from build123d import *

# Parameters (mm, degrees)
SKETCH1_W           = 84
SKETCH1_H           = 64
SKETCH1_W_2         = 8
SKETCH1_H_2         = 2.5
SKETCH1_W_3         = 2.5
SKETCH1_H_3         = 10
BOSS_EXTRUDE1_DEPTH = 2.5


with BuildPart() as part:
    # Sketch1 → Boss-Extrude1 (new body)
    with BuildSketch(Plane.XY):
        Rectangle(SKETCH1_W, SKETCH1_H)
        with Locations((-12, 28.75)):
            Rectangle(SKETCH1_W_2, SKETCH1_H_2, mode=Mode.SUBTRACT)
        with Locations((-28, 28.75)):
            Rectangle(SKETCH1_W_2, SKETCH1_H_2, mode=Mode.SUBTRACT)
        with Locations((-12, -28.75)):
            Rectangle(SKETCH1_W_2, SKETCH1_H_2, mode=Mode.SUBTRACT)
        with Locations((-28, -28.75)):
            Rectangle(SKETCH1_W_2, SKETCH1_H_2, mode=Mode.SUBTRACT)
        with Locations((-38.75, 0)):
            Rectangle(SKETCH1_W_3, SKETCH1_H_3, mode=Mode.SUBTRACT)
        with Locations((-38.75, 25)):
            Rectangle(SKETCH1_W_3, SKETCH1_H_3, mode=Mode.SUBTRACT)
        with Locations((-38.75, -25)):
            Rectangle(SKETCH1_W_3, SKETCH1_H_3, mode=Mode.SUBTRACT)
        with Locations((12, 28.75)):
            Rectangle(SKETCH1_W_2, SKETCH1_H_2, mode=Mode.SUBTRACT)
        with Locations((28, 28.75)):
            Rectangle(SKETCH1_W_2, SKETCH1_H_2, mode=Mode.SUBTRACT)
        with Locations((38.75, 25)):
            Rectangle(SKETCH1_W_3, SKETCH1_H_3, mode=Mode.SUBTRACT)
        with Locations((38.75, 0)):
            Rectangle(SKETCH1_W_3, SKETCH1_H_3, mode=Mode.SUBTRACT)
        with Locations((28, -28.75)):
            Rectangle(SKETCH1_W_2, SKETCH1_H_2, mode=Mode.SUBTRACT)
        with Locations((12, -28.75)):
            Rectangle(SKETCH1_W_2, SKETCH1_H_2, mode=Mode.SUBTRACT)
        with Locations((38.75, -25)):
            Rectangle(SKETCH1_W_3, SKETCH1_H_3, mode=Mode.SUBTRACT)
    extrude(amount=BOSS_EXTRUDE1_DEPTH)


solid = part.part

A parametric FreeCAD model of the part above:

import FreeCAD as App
import Part
import Sketcher
from FreeCAD import Vector


def add_polygon(sketch, points):
    """Adds a closed chain of lines whose ends are joined by coincident constraints."""
    first, n = sketch.GeometryCount, len(points)
    for a, b in zip(points, points[1:] + points[:1]):
        sketch.addGeometry(Part.LineSegment(App.Vector(*a, 0), App.Vector(*b, 0)), False)
    for i in range(n):
        sketch.addConstraint(Sketcher.Constraint("Coincident", first + i, 2, first + (i + 1) % n, 1))

doc = App.newDocument("Part")
params = doc.addObject("Spreadsheet::Sheet", "Params")
for row, (alias, value) in enumerate([
    ("sketch1_width", "84 mm"),
    ("sketch1_width2", "8 mm"),
    ("sketch1_height", "64 mm"),
    ("sketch1_height2", "10 mm"),
    ("sketch1_width3", "2.5 mm"),
    ("pad1_length", "2.5 mm"),
], start=1):
    params.set(f"A{row}", alias)
    params.set(f"B{row}", "=" + value)
    params.setAlias(f"B{row}", alias)

body = doc.addObject("PartDesign::Body", "Body")

# Sketch on XY plane
sketch1 = body.newObject("Sketcher::SketchObject", "Sketch")
sketch1.AttachmentSupport = (doc.getObject("XY_Plane"), [""])
sketch1.MapMode = "FlatFace"
add_polygon(sketch1, [(-42, 32), (-42, -32), (42, -32), (42, 32)])  # lines 0-3
add_polygon(sketch1, [(-37.5, -30), (-40, -30), (-40, -20), (-37.5, -20)])  # lines 4-7
add_polygon(sketch1, [(-24, -30), (-32, -30), (-32, -27.5), (-24, -27.5)])  # lines 8-11
add_polygon(sketch1, [(-8, -30), (-16, -30), (-16, -27.5), (-8, -27.5)])  # lines 12-15
add_polygon(sketch1, [(16, -30), (8, -30), (8, -27.5), (16, -27.5)])  # lines 16-19
add_polygon(sketch1, [(32, -30), (24, -30), (24, -27.5), (32, -27.5)])  # lines 20-23
add_polygon(sketch1, [(40, -30), (37.5, -30), (37.5, -20), (40, -20)])  # lines 24-27
add_polygon(sketch1, [(-37.5, -5), (-40, -5), (-40, 5), (-37.5, 5)])  # lines 28-31
add_polygon(sketch1, [(-37.5, 20), (-40, 20), (-40, 30), (-37.5, 30)])  # lines 32-35
add_polygon(sketch1, [(-24, 27.5), (-32, 27.5), (-32, 30), (-24, 30)])  # lines 36-39
add_polygon(sketch1, [(-8, 27.5), (-16, 27.5), (-16, 30), (-8, 30)])  # lines 40-43
add_polygon(sketch1, [(40, -5), (37.5, -5), (37.5, 5), (40, 5)])  # lines 44-47
add_polygon(sketch1, [(16, 27.5), (8, 27.5), (8, 30), (16, 30)])  # lines 48-51
add_polygon(sketch1, [(32, 27.5), (24, 27.5), (24, 30), (32, 30)])  # lines 52-55
add_polygon(sketch1, [(40, 20), (37.5, 20), (37.5, 30), (40, 30)])  # lines 56-59
sketch1.addConstraint([
    Sketcher.Constraint("Vertical", 0),
    Sketcher.Constraint("Horizontal", 1),
    Sketcher.Constraint("Vertical", 2),
    Sketcher.Constraint("Horizontal", 3),
    Sketcher.Constraint("Horizontal", 4),
    Sketcher.Constraint("Vertical", 5),
    Sketcher.Constraint("Horizontal", 6),
    Sketcher.Constraint("Vertical", 7),
    Sketcher.Constraint("Horizontal", 8),
    Sketcher.Constraint("Vertical", 9),
    Sketcher.Constraint("Horizontal", 10),
    Sketcher.Constraint("Vertical", 11),
    Sketcher.Constraint("Horizontal", 12),
    Sketcher.Constraint("Vertical", 13),
    Sketcher.Constraint("Horizontal", 14),
    Sketcher.Constraint("Vertical", 15),
    Sketcher.Constraint("Horizontal", 16),
    Sketcher.Constraint("Vertical", 17),
    Sketcher.Constraint("Horizontal", 18),
    Sketcher.Constraint("Vertical", 19),
    Sketcher.Constraint("Horizontal", 20),
    Sketcher.Constraint("Vertical", 21),
    Sketcher.Constraint("Horizontal", 22),
    Sketcher.Constraint("Vertical", 23),
    Sketcher.Constraint("Horizontal", 24),
    Sketcher.Constraint("Vertical", 25),
    Sketcher.Constraint("Horizontal", 26),
    Sketcher.Constraint("Vertical", 27),
    Sketcher.Constraint("Horizontal", 28),
    Sketcher.Constraint("Vertical", 29),
    Sketcher.Constraint("Horizontal", 30),
    Sketcher.Constraint("Vertical", 31),
    Sketcher.Constraint("Horizontal", 32),
    Sketcher.Constraint("Vertical", 33),
    Sketcher.Constraint("Horizontal", 34),
    Sketcher.Constraint("Vertical", 35),
    Sketcher.Constraint("Horizontal", 36),
    Sketcher.Constraint("Vertical", 37),
    Sketcher.Constraint("Horizontal", 38),
    Sketcher.Constraint("Vertical", 39),
    Sketcher.Constraint("Horizontal", 40),
    Sketcher.Constraint("Vertical", 41),
    Sketcher.Constraint("Horizontal", 42),
    Sketcher.Constraint("Vertical", 43),
    Sketcher.Constraint("Horizontal", 44),
    Sketcher.Constraint("Vertical", 45),
    Sketcher.Constraint("Horizontal", 46),
    Sketcher.Constraint("Vertical", 47),
    Sketcher.Constraint("Horizontal", 48),
    Sketcher.Constraint("Vertical", 49),
    Sketcher.Constraint("Horizontal", 50),
    Sketcher.Constraint("Vertical", 51),
    Sketcher.Constraint("Horizontal", 52),
    Sketcher.Constraint("Vertical", 53),
    Sketcher.Constraint("Horizontal", 54),
    Sketcher.Constraint("Vertical", 55),
    Sketcher.Constraint("Horizontal", 56),
    Sketcher.Constraint("Vertical", 57),
    Sketcher.Constraint("Horizontal", 58),
    Sketcher.Constraint("Vertical", 59),
    Sketcher.Constraint("Symmetric", 0, 2, 2, 2, -1, 1),
    Sketcher.Constraint("Symmetric", 26, 2, 32, 2, -1, 1),
    Sketcher.Constraint("Symmetric", 24, 2, 34, 2, -1, 1),
    Sketcher.Constraint("Symmetric", 22, 2, 36, 2, -1, 1),
    Sketcher.Constraint("Symmetric", 20, 2, 38, 2, -1, 1),
    Sketcher.Constraint("Symmetric", 18, 2, 40, 2, -1, 1),
    Sketcher.Constraint("Symmetric", 16, 2, 42, 2, -1, 1),
    Sketcher.Constraint("Symmetric", 30, 2, 44, 2, -1, 1),
    Sketcher.Constraint("Symmetric", 28, 2, 46, 2, -1, 1),
    Sketcher.Constraint("Symmetric", 14, 2, 48, 2, -1, 1),
    Sketcher.Constraint("Symmetric", 12, 2, 50, 2, -1, 1),
    Sketcher.Constraint("Symmetric", 10, 2, 52, 2, -1, 1),
    Sketcher.Constraint("Symmetric", 8, 2, 54, 2, -1, 1),
    Sketcher.Constraint("Symmetric", 6, 2, 56, 2, -1, 1),
    Sketcher.Constraint("Symmetric", 4, 2, 58, 2, -1, 1),
    Sketcher.Constraint("Symmetric", 15, 2, 16, 2, -2),
    Sketcher.Constraint("Symmetric", 13, 2, 18, 2, -2),
    Sketcher.Constraint("Symmetric", 11, 2, 20, 2, -2),
    Sketcher.Constraint("Symmetric", 9, 2, 22, 2, -2),
    Sketcher.Constraint("Symmetric", 7, 2, 24, 2, -2),
    Sketcher.Constraint("Symmetric", 5, 2, 26, 2, -2),
    Sketcher.Constraint("Horizontal", 7, 2, 8, 2),
    Sketcher.Constraint("Horizontal", 11, 2, 12, 2),
    Sketcher.Constraint("Horizontal", 10, 2, 13, 2),
    Sketcher.Constraint("Horizontal", 31, 2, 44, 2),
    Sketcher.Constraint("Vertical", 5, 2, 28, 2),
    Sketcher.Constraint("Vertical", 7, 2, 30, 2),
    Sketcher.Constraint("Equal", 10, 12),
    Sketcher.Constraint("Equal", 58, 9),
    Sketcher.Constraint("Equal", 27, 29),
    Sketcher.Constraint("DistanceX", 1, 1, 1, 2, 84.0),
    Sketcher.Constraint("DistanceX", 8, 2, 8, 1, 8.0),
    Sketcher.Constraint("DistanceY", 0, 2, 0, 1, 64.0),
    Sketcher.Constraint("DistanceY", 5, 1, 5, 2, 10.0),
    Sketcher.Constraint("DistanceX", 4, 2, 4, 1, 2.5),
    Sketcher.Constraint("DistanceX", 4, 2, -1, 1, 40.0),
    Sketcher.Constraint("DistanceY", 4, 2, -1, 1, 30.0),
    Sketcher.Constraint("DistanceX", 8, 2, -1, 1, 32.0),
    Sketcher.Constraint("DistanceX", 12, 2, -1, 1, 16.0),
])
sketch1.setExpression("Constraints[150]", "Params.sketch1_width")
sketch1.setExpression("Constraints[151]", "Params.sketch1_width2")
sketch1.setExpression("Constraints[152]", "Params.sketch1_height")
sketch1.setExpression("Constraints[153]", "Params.sketch1_height2")
sketch1.setExpression("Constraints[154]", "Params.sketch1_width3")
pad1 = body.newObject("PartDesign::Pad", "Pad")
pad1.Profile = sketch1
pad1.setExpression("Length", "Params.pad1_length")

doc.recompute()
